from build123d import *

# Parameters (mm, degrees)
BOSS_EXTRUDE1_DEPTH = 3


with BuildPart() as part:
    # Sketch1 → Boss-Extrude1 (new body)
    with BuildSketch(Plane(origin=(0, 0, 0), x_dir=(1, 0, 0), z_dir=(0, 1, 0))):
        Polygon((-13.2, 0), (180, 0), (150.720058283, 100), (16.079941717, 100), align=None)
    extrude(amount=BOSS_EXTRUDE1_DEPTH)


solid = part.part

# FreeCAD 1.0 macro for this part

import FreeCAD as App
import Part
import Sketcher

V = App.Vector
Q = App.Units.Quantity


def add_polygon(sketch, points):
    """Adds a closed chain of lines whose ends are joined by coincident constraints."""
    first, n = sketch.GeometryCount, len(points)
    for a, b in zip(points, points[1:] + points[:1]):
        sketch.addGeometry(Part.LineSegment(App.Vector(*a, 0), App.Vector(*b, 0)), False)
    for i in range(n):
        sketch.addConstraint(Sketcher.Constraint("Coincident", first + i, 2, first + (i + 1) % n, 1))

doc = App.newDocument("Part")
body = doc.addObject("PartDesign::Body", "Body")

# Sketch on XZ plane
sketch1 = doc.addObject("Sketcher::SketchObject", "Sketch")
body.addObject(sketch1)
sketch1.AttachmentSupport = (doc.XZ_Plane, [""])
sketch1.MapMode = "FlatFace"
add_polygon(sketch1, [(-13, 0), (180, 0), (151, -100), (16, -100)])  # lines 0-3
sketch1.addConstraint([
    Sketcher.Constraint("Horizontal", 0),
    Sketcher.Constraint("Horizontal", 2),
    Sketcher.Constraint("PointOnObject", 0, 2, -1),
    Sketcher.Constraint("Equal", 1, 3),
    Sketcher.Constraint("DistanceX", 0, 1, 0, 2, Q("193.2 mm")),
    Sketcher.Constraint("DistanceX", -1, 1, 0, 2, Q("180 mm")),
    Sketcher.Constraint("DistanceY", 1, 2, -1, 1, Q("100 mm")),
    Sketcher.Constraint("Angle", 1, Q("-106.32 deg")),
])
pad1 = doc.addObject("PartDesign::Pad", "Pad")
body.addObject(pad1)
pad1.Profile = sketch1
pad1.Length = 3
pad1.Reversed = True

doc.recompute()
